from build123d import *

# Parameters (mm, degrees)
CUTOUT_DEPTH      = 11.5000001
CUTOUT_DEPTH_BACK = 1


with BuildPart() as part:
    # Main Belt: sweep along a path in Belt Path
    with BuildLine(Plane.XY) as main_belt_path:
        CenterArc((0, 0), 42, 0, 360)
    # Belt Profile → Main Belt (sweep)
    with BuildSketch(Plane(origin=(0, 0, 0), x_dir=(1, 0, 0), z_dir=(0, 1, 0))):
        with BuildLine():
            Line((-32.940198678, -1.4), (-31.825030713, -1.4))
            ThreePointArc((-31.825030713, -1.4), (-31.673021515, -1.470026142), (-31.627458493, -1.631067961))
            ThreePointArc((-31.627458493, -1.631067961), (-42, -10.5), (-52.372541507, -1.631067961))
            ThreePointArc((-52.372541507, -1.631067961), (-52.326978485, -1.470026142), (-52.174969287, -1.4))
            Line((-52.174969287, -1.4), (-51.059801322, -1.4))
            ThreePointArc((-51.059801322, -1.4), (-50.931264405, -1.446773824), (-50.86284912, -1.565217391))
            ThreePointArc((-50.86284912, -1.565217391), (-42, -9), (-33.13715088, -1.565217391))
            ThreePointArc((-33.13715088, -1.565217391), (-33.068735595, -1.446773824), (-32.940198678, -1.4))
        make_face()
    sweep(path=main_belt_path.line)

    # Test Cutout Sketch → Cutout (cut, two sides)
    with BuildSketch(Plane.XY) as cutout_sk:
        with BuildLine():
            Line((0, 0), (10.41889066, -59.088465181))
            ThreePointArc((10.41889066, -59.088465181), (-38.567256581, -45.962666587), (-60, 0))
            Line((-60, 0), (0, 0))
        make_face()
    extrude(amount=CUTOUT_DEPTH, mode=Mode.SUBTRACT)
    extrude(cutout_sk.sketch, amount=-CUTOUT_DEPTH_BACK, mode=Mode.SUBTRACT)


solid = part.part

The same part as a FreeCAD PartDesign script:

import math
import FreeCAD as App
import Part
import Sketcher
Q = App.Units.Quantity

doc = App.newDocument("Part")
body = doc.addObject("PartDesign::Body", "Body")

sketch1 = body.newObject("Sketcher::SketchObject", "Sketch")
sketch1.AttachmentSupport = (doc.getObject("XZ_Plane"), [""])
sketch1.MapMode = "FlatFace"
sketch1.addGeometry([
    Part.LineSegment(App.Vector(-31.83, 1.4, 0), App.Vector(-32.94, 1.4, 0)),
    Part.ArcOfCircle(Part.Circle(App.Vector(-32.94, 1.6, 0), App.Vector(0, 0, 1), 0.2), math.radians(-170), math.radians(-90)),
    Part.ArcOfCircle(Part.Circle(App.Vector(-42, 0, 0), App.Vector(0, 0, 1), 9), math.radians(10), math.radians(170)),
    Part.ArcOfCircle(Part.Circle(App.Vector(-51.06, 1.6, 0), App.Vector(0, 0, 1), 0.2), math.radians(-90), math.radians(-10)),
    Part.LineSegment(App.Vector(-51.06, 1.4, 0), App.Vector(-52.17, 1.4, 0)),
    Part.ArcOfCircle(Part.Circle(App.Vector(-52.17, 1.6, 0), App.Vector(0, 0, 1), 0.2), math.radians(171), math.radians(270)),
    Part.ArcOfCircle(Part.Circle(App.Vector(-42, 0, 0), App.Vector(0, 0, 1), 10.5), math.radians(9), math.radians(171)),
    Part.ArcOfCircle(Part.Circle(App.Vector(-31.83, 1.6, 0), App.Vector(0, 0, 1), 0.2), math.radians(-90), math.radians(9)),
], False)
sketch1.addConstraint([
    Sketcher.Constraint("Tangent", 0, 2, 1, 2),
    Sketcher.Constraint("Tangent", 1, 1, 2, 1),
    Sketcher.Constraint("Tangent", 2, 2, 3, 2),
    Sketcher.Constraint("Tangent", 3, 1, 4, 1),
    Sketcher.Constraint("Tangent", 4, 2, 5, 2),
    Sketcher.Constraint("Tangent", 5, 1, 6, 2),
    Sketcher.Constraint("Tangent", 6, 1, 7, 2),
    Sketcher.Constraint("Tangent", 7, 1, 0, 1),
    Sketcher.Constraint("Horizontal", 0),
    Sketcher.Constraint("Horizontal", 4),
    Sketcher.Constraint("Coincident", 6, 3, 2, 3),
    Sketcher.Constraint("Equal", 1, 3),
    Sketcher.Constraint("Equal", 3, 5),
    Sketcher.Constraint("Equal", 5, 7),
    Sketcher.Constraint("PointOnObject", 2, 3, -1),
    Sketcher.Constraint("Horizontal", 1, 3, 3, 3),
    Sketcher.Constraint("Radius", 2, 9.0),
    Sketcher.Constraint("Radius", 1, 0.2),
    Sketcher.Constraint("Radius", 6, 10.5),
    Sketcher.Constraint("DistanceX", 2, 3, -1, 1, 42.0),
    Sketcher.Constraint("DistanceY", -1, 1, 1, 3, 1.6),
])

sketch2 = body.newObject("Sketcher::SketchObject", "Sketch001")
sketch2.AttachmentSupport = (doc.getObject("XY_Plane"), [""])
sketch2.MapMode = "FlatFace"
sketch2.addGeometry(Part.Circle(App.Vector(0, 0, 0), App.Vector(0, 0, 1), 42), False)
sketch2.addConstraint([
    Sketcher.Constraint("Coincident", 0, 3, -1, 1),
    Sketcher.Constraint("Diameter", 0, 84.0),
])
doc.recompute()

additivepipe = body.newObject("PartDesign::AdditivePipe", "AdditivePipe")
additivepipe.Profile = sketch1
additivepipe.Spine = (sketch2, ["Edge1"])

sketch3 = body.newObject("Sketcher::SketchObject", "Sketch002")
sketch3.AttachmentSupport = (doc.getObject("XY_Plane"), [""])
sketch3.MapMode = "FlatFace"
sketch3.addGeometry([
    Part.LineSegment(App.Vector(10, -59, 0), App.Vector(0, 0, 0)),
    Part.LineSegment(App.Vector(0, 0, 0), App.Vector(-60, 0, 0)),
    Part.ArcOfCircle(Part.Circle(App.Vector(0, 0, 0), App.Vector(0, 0, 1), 60), math.radians(-180), math.radians(-80)),
], False)
sketch3.addConstraint([
    Sketcher.Constraint("Coincident", 0, 2, 1, 1),
    Sketcher.Constraint("Coincident", 1, 2, 2, 1),
    Sketcher.Constraint("Coincident", 2, 2, 0, 1),
    Sketcher.Constraint("Horizontal", 1),
    Sketcher.Constraint("Coincident", 2, 3, -1, 1),
    Sketcher.Constraint("Coincident", 0, 2, -1, 1),
    Sketcher.Constraint("Radius", 2, 60.0),
    Sketcher.Constraint("Angle", 0, Q("100 deg")),
])
pocket1 = body.newObject("PartDesign::Pocket", "Pocket")
pocket1.Profile = sketch3
pocket1.Type = "ThroughAll"
pocket1.Midplane = True

doc.recompute()
